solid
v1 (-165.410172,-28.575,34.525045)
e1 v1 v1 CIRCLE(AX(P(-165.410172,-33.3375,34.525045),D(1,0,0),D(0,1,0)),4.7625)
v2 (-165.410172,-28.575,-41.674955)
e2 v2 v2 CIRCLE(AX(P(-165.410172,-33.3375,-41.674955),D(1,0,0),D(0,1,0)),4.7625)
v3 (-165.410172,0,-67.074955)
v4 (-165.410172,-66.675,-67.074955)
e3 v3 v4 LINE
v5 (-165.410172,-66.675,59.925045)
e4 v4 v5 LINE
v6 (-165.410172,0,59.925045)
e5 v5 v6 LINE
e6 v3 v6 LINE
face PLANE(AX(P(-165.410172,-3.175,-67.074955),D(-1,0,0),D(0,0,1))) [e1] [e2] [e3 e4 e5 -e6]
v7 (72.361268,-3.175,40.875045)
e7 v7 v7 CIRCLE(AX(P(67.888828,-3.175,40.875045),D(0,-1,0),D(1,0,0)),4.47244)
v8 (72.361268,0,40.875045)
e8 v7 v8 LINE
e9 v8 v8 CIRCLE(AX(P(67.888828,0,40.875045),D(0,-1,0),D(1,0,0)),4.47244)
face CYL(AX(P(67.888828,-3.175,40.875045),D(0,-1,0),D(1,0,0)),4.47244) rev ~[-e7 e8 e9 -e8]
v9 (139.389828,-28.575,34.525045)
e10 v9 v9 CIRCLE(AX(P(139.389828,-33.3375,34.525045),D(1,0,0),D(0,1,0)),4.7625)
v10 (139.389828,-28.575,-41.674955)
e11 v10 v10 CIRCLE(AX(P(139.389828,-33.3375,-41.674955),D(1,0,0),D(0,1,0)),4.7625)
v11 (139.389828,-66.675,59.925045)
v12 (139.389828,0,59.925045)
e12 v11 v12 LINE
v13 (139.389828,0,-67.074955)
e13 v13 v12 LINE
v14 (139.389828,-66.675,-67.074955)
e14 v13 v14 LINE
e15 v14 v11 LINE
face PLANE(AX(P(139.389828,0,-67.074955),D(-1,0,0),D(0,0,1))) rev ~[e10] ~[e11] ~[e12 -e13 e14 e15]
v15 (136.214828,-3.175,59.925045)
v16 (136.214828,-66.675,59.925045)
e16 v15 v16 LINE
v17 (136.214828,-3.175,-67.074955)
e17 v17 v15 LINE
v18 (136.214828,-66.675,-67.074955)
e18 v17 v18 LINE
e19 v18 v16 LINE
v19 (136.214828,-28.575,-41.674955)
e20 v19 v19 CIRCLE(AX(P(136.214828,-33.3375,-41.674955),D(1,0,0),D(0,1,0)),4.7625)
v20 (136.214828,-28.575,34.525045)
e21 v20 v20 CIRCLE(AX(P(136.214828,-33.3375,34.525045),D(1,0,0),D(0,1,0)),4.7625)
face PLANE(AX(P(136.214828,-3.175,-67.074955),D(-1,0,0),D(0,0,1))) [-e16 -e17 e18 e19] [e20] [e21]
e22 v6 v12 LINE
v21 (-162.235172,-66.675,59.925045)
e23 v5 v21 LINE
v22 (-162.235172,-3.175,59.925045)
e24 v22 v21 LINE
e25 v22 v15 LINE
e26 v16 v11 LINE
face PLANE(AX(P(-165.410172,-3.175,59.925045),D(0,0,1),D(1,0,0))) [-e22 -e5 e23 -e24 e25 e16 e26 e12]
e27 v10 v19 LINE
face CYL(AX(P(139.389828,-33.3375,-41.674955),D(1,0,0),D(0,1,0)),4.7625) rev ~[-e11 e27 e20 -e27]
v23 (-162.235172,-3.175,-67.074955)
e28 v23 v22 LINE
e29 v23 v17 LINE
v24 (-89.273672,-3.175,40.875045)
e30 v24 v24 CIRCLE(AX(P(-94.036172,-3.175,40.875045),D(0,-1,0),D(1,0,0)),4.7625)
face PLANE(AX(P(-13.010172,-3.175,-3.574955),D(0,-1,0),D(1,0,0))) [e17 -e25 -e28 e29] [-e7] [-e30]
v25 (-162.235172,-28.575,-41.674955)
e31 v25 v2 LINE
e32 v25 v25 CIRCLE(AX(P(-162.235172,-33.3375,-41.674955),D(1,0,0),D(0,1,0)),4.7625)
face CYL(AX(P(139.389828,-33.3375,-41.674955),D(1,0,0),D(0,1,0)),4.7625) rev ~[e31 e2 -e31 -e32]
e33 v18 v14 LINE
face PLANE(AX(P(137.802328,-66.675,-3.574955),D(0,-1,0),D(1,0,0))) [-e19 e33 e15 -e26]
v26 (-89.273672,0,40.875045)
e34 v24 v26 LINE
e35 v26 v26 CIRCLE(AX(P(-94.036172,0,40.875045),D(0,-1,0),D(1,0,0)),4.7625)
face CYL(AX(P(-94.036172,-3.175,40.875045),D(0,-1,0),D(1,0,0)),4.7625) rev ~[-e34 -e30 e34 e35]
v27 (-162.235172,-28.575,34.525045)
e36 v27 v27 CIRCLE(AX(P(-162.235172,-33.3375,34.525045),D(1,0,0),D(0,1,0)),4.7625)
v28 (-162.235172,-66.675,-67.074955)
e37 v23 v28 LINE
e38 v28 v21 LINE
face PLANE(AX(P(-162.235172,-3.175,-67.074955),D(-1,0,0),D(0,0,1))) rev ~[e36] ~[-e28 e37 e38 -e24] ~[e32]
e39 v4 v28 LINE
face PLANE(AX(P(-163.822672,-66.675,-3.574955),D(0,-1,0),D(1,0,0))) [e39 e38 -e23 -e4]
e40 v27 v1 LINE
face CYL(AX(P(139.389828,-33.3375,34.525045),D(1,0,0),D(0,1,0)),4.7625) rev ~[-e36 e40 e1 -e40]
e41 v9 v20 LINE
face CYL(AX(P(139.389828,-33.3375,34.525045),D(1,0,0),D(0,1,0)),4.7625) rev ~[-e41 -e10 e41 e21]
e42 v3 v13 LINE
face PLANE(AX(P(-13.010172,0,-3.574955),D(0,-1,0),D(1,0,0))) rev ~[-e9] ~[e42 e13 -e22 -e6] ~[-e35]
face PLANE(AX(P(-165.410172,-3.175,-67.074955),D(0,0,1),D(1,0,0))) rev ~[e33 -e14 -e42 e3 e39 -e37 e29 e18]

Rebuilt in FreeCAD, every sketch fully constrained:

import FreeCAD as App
import Part
import Sketcher
Q = App.Units.Quantity

doc = App.newDocument("Part")
body = doc.addObject("PartDesign::Body", "Body")

# Sketch on XZ plane
sketch1 = body.newObject("Sketcher::SketchObject", "Sketch")
sketch1.AttachmentSupport = (doc.getObject("XZ_Plane"), [""])
sketch1.MapMode = "FlatFace"
sketch1.addGeometry([
    Part.LineSegment(App.Vector(-165, 60, 0), App.Vector(-165, -67, 0)),
    Part.LineSegment(App.Vector(-165, -67, 0), App.Vector(139, -67, 0)),
    Part.LineSegment(App.Vector(139, -67, 0), App.Vector(139, 60, 0)),
    Part.LineSegment(App.Vector(139, 60, 0), App.Vector(-165, 60, 0)),
], False)
sketch1.addConstraint([
    Sketcher.Constraint("Coincident", 0, 2, 1, 1),
    Sketcher.Constraint("Coincident", 1, 2, 2, 1),
    Sketcher.Constraint("Coincident", 2, 2, 3, 1),
    Sketcher.Constraint("Coincident", 3, 2, 0, 1),
    Sketcher.Constraint("Vertical", 0),
    Sketcher.Constraint("Horizontal", 1),
    Sketcher.Constraint("Vertical", 2),
    Sketcher.Constraint("Horizontal", 3),
    Sketcher.Constraint("DistanceX", 1, 1, 1, 2, Q("12 in")),
    Sketcher.Constraint("DistanceY", 0, 2, 0, 1, Q("5 in")),
    Sketcher.Constraint("DistanceX", 0, 2, -1, 1, Q("165.410172 mm")),
    Sketcher.Constraint("DistanceY", 0, 2, -1, 1, Q("67.074955 mm")),
])
pad1 = body.newObject("PartDesign::Pad", "Pad")
pad1.Profile = sketch1
pad1.Length = Q("0.125 in")

# Sketch on XZ plane
sketch2 = body.newObject("Sketcher::SketchObject", "Sketch001")
sketch2.AttachmentSupport = (doc.getObject("XZ_Plane"), [""])
sketch2.MapMode = "FlatFace"
sketch2.AttachmentOffset = App.Placement(App.Vector(0, 0, 0.125 * 25.4), App.Rotation())
sketch2.addGeometry([
    Part.LineSegment(App.Vector(-165.4, 59.9, 0), App.Vector(-165.4, -67.1, 0)),  # 0
    Part.LineSegment(App.Vector(-165.4, -67.1, 0), App.Vector(-162.2, -67.1, 0)),  # 1
    Part.LineSegment(App.Vector(-162.2, -67.1, 0), App.Vector(-162.2, 59.9, 0)),  # 2
    Part.LineSegment(App.Vector(-162.2, 59.9, 0), App.Vector(-165.4, 59.9, 0)),  # 3
    Part.LineSegment(App.Vector(136.2, 59.9, 0), App.Vector(136.2, -67.1, 0)),  # 4
    Part.LineSegment(App.Vector(136.2, -67.1, 0), App.Vector(139.4, -67.1, 0)),  # 5
    Part.LineSegment(App.Vector(139.4, -67.1, 0), App.Vector(139.4, 59.9, 0)),  # 6
    Part.LineSegment(App.Vector(139.4, 59.9, 0), App.Vector(136.2, 59.9, 0)),  # 7
], False)
sketch2.addConstraint([
    Sketcher.Constraint("Coincident", 0, 2, 1, 1),
    Sketcher.Constraint("Coincident", 1, 2, 2, 1),
    Sketcher.Constraint("Coincident", 2, 2, 3, 1),
    Sketcher.Constraint("Coincident", 3, 2, 0, 1),
    Sketcher.Constraint("Coincident", 4, 2, 5, 1),
    Sketcher.Constraint("Coincident", 5, 2, 6, 1),
    Sketcher.Constraint("Coincident", 6, 2, 7, 1),
    Sketcher.Constraint("Coincident", 7, 2, 4, 1),
    Sketcher.Constraint("Vertical", 0),
    Sketcher.Constraint("Horizontal", 1),
    Sketcher.Constraint("Vertical", 2),
    Sketcher.Constraint("Horizontal", 3),
    Sketcher.Constraint("Vertical", 4),
    Sketcher.Constraint("Horizontal", 5),
    Sketcher.Constraint("Vertical", 6),
    Sketcher.Constraint("Horizontal", 7),
    Sketcher.Constraint("Horizontal", 1, 2, 4, 2),
    Sketcher.Constraint("Horizontal", 3, 2, 6, 2),
    Sketcher.Constraint("Equal", 3, 5),
    Sketcher.Constraint("DistanceY", 0, 2, 0, 1, Q("5 in")),
    Sketcher.Constraint("DistanceX", 0, 2, 5, 2, Q("12 in")),
    Sketcher.Constraint("DistanceX", 1, 1, 1, 2, Q("0.125 in")),
    Sketcher.Constraint("DistanceX", 0, 2, -1, 1, Q("165.410172 mm")),
    Sketcher.Constraint("DistanceY", 0, 2, -1, 1, Q("67.074955 mm")),
])
pad2 = body.newObject("PartDesign::Pad", "Pad001")
pad2.Profile = sketch2
pad2.Length = Q("2.5 in")

# Sketch on XZ plane
sketch3 = body.newObject("Sketcher::SketchObject", "Sketch002")
sketch3.AttachmentSupport = (doc.getObject("XZ_Plane"), [""])
sketch3.MapMode = "FlatFace"
sketch3.AttachmentOffset = App.Placement(App.Vector(0, 0, 0.125 * 25.4), App.Rotation())
sketch3.addGeometry([
    Part.Circle(App.Vector(-94, 40.9, 0), App.Vector(0, 0, 1), 4.8),
    Part.Circle(App.Vector(67.9, 40.9, 0), App.Vector(0, 0, 1), 4.5),
], False)
sketch3.addConstraint([
    Sketcher.Constraint("Horizontal", 0, 3, 1, 3),
    Sketcher.Constraint("Diameter", 0, Q("0.375 in")),
    Sketcher.Constraint("Diameter", 1, Q("8.94488 mm")),
    Sketcher.Constraint("DistanceX", 0, 3, 1, 3, Q("6.375 in")),
    Sketcher.Constraint("DistanceX", 0, 3, -1, 1, Q("94.036172 mm")),
    Sketcher.Constraint("DistanceY", -1, 1, 0, 3, Q("40.875045 mm")),
])
pocket1 = body.newObject("PartDesign::Pocket", "Pocket")
pocket1.Profile = sketch3
pocket1.Length = Q("1 in")

# Sketch on YZ plane
sketch4 = body.newObject("Sketcher::SketchObject", "Sketch003")
sketch4.AttachmentSupport = (doc.getObject("YZ_Plane"), [""])
sketch4.MapMode = "FlatFace"
sketch4.AttachmentOffset = App.Placement(App.Vector(0, 0, 139.389828), App.Rotation())
sketch4.addGeometry([
    Part.Circle(App.Vector(-33.3, 34.5, 0), App.Vector(0, 0, 1), 4.8),
    Part.Circle(App.Vector(-33.3, -41.7, 0), App.Vector(0, 0, 1), 4.8),
], False)
sketch4.addConstraint([
    Sketcher.Constraint("Equal", 0, 1),
    Sketcher.Constraint("Vertical", 0, 3, 1, 3),
    Sketcher.Constraint("Diameter", 0, Q("0.375 in")),
    Sketcher.Constraint("DistanceY", 1, 3, 0, 3, Q("3 in")),
    Sketcher.Constraint("DistanceX", 0, 3, -1, 1, Q("1.3125 in")),
    Sketcher.Constraint("DistanceY", -1, 1, 0, 3, Q("34.525045 mm")),
])
pocket2 = body.newObject("PartDesign::Pocket", "Pocket001")
pocket2.Profile = sketch4
pocket2.Length = Q("12 in")

doc.recompute()
